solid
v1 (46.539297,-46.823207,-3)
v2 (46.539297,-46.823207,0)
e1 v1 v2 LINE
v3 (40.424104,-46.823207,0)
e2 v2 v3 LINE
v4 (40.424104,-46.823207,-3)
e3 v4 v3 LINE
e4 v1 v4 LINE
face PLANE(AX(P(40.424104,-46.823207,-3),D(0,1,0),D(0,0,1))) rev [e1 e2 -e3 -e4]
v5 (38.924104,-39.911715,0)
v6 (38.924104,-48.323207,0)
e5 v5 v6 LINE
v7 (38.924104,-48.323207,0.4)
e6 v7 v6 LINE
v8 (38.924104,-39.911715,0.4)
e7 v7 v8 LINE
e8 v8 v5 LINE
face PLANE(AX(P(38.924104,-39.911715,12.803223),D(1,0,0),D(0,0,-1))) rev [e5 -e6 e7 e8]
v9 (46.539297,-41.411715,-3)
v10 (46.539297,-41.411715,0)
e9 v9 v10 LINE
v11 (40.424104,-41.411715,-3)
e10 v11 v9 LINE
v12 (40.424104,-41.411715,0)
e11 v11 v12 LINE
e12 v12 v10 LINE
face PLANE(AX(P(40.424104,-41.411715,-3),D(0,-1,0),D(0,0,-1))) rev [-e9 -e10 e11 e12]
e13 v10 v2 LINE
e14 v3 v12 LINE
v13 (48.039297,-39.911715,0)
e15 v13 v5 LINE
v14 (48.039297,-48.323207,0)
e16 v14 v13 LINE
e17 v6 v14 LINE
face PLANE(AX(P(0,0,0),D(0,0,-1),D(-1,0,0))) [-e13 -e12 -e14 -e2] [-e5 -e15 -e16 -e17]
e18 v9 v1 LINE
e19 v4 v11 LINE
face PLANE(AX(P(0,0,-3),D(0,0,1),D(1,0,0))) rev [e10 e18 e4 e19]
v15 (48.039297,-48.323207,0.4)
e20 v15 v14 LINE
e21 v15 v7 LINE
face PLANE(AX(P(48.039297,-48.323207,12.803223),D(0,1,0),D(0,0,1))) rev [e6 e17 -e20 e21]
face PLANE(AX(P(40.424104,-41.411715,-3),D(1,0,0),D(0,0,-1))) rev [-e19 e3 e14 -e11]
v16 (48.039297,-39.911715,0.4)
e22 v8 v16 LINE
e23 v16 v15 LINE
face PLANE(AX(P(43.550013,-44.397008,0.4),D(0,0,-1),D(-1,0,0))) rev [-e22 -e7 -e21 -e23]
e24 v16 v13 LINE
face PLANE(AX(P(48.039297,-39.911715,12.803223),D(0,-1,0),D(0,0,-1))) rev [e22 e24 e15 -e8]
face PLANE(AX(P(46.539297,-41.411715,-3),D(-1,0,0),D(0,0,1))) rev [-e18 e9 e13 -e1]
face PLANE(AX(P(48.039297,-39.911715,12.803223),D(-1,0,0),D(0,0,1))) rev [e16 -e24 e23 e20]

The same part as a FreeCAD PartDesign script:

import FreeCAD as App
import Part
import Sketcher
from FreeCAD import Vector

doc = App.newDocument("Part")
params = doc.addObject("Spreadsheet::Sheet", "Params")
for row, (alias, value) in enumerate([
    ("pad1_length", "0.4 mm"),
    ("pad2_length", "3 mm"),
], start=1):
    params.set(f"A{row}", alias)
    params.set(f"B{row}", "=" + value)
    params.setAlias(f"B{row}", alias)

body = doc.addObject("PartDesign::Body", "Body")

sketch1 = body.newObject("Sketcher::SketchObject", "Sketch")
sketch1.AttachmentSupport = (doc.getObject("XY_Plane"), [""])
sketch1.MapMode = "FlatFace"
sketch1.addGeometry([
    Part.LineSegment(Vector(38.924104, -39.911715, 0), Vector(38.924104, -48.323207, 0)),
    Part.LineSegment(Vector(38.924104, -48.323207, 0), Vector(48.039297, -48.323207, 0)),
    Part.LineSegment(Vector(48.039297, -48.323207, 0), Vector(48.039297, -39.911715, 0)),
    Part.LineSegment(Vector(48.039297, -39.911715, 0), Vector(38.924104, -39.911715, 0)),
], False)
sketch1.addConstraint([
    Sketcher.Constraint("Coincident", 0, 2, 1, 1),
    Sketcher.Constraint("Coincident", 1, 2, 2, 1),
    Sketcher.Constraint("Coincident", 2, 2, 3, 1),
    Sketcher.Constraint("Coincident", 3, 2, 0, 1),
    Sketcher.Constraint("Vertical", 0),
    Sketcher.Constraint("Horizontal", 1),
    Sketcher.Constraint("Vertical", 2),
    Sketcher.Constraint("Horizontal", 3),
    Sketcher.Constraint("DistanceY", 0, 2, 0, 1, 8.411492),
    Sketcher.Constraint("DistanceX", 1, 1, 1, 2, 9.115192),
    Sketcher.Constraint("DistanceX", -1, 1, 0, 2, 38.924104),
    Sketcher.Constraint("DistanceY", 0, 2, -1, 1, 48.323207),
])
pad1 = body.newObject("PartDesign::Pad", "Pad")
pad1.Profile = sketch1
pad1.setExpression("Length", "Params.pad1_length")

sketch2 = body.newObject("Sketcher::SketchObject", "Sketch001")
sketch2.AttachmentSupport = (doc.getObject("XY_Plane"), [""])
sketch2.MapMode = "FlatFace"
sketch2.addGeometry([
    Part.LineSegment(Vector(46.539297, -41.411715, 0), Vector(46.539297, -46.823207, 0)),
    Part.LineSegment(Vector(46.539297, -46.823207, 0), Vector(40.424104, -46.823207, 0)),
    Part.LineSegment(Vector(40.424104, -46.823207, 0), Vector(40.424104, -41.411715, 0)),
    Part.LineSegment(Vector(40.424104, -41.411715, 0), Vector(46.539297, -41.411715, 0)),
], False)
sketch2.addConstraint([
    Sketcher.Constraint("Coincident", 0, 2, 1, 1),
    Sketcher.Constraint("Coincident", 1, 2, 2, 1),
    Sketcher.Constraint("Coincident", 2, 2, 3, 1),
    Sketcher.Constraint("Coincident", 3, 2, 0, 1),
    Sketcher.Constraint("Vertical", 0),
    Sketcher.Constraint("Horizontal", 1),
    Sketcher.Constraint("Vertical", 2),
    Sketcher.Constraint("Horizontal", 3),
    Sketcher.Constraint("DistanceY", 0, 2, 0, 1, 5.411492),
    Sketcher.Constraint("DistanceX", 1, 2, 1, 1, 6.115192),
    Sketcher.Constraint("DistanceX", -1, 1, 0, 2, 46.539297),
    Sketcher.Constraint("DistanceY", 0, 2, -1, 1, 46.823207),
])
pad2 = body.newObject("PartDesign::Pad", "Pad001")
pad2.Profile = sketch2
pad2.setExpression("Length", "Params.pad2_length")
pad2.Reversed = True

doc.recompute()
